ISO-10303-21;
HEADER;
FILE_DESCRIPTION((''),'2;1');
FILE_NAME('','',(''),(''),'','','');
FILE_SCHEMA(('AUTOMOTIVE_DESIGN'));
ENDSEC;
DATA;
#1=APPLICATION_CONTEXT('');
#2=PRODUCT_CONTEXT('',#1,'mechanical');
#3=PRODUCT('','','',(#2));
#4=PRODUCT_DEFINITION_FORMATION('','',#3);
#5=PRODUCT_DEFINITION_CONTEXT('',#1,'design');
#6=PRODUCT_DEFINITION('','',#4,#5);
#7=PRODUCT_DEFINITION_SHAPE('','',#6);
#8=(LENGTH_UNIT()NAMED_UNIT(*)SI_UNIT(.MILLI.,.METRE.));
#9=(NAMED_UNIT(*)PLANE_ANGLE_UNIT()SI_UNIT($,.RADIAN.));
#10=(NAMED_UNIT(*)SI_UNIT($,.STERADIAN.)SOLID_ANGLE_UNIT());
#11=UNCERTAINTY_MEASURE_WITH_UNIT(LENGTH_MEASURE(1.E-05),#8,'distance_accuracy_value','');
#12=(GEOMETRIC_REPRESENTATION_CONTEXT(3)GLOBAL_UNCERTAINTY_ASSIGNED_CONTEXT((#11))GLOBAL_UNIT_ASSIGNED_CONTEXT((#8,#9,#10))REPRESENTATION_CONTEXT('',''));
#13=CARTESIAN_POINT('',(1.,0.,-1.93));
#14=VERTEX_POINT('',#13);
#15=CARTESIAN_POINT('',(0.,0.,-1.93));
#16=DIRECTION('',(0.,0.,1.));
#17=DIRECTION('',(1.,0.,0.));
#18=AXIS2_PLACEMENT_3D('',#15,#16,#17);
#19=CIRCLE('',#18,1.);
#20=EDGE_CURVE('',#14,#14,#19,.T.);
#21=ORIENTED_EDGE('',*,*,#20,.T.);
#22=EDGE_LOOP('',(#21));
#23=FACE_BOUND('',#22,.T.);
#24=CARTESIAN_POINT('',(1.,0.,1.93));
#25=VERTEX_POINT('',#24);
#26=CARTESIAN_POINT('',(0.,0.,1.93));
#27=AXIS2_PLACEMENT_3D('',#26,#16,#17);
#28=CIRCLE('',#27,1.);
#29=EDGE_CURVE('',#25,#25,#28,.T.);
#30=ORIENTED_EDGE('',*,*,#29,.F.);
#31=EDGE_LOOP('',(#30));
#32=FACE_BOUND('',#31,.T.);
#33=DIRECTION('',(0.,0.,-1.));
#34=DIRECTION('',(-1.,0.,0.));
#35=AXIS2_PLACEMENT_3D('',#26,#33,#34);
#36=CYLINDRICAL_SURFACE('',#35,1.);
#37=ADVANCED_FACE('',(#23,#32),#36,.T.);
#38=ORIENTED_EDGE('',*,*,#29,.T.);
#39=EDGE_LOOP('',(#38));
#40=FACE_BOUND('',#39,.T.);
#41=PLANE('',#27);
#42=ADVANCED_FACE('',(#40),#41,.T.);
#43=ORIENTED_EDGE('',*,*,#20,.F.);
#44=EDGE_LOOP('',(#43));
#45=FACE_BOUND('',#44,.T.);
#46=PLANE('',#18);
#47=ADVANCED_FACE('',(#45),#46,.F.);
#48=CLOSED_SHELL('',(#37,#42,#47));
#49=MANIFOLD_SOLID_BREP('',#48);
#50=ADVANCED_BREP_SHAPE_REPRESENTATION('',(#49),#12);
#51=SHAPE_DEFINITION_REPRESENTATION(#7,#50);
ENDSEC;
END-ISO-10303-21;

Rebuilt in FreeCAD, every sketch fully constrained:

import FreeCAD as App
import Part
import Sketcher
from FreeCAD import Vector

doc = App.newDocument("Part")
body = doc.addObject("PartDesign::Body", "Body")

sketch1 = doc.addObject("Sketcher::SketchObject", "Sketch")
body.addObject(sketch1)
sketch1.AttachmentSupport = (doc.XY_Plane, [""])
sketch1.MapMode = "FlatFace"
sketch1.addGeometry(Part.Circle(Vector(0, 0, 0), Vector(0, 0, 1), 1), False)
sketch1.addConstraint([
    Sketcher.Constraint("Coincident", 0, 3, -1, 1),
    Sketcher.Constraint("Diameter", 0, 2.0),
])
pad1 = doc.addObject("PartDesign::Pad", "Pad")
body.addObject(pad1)
pad1.Profile = sketch1
pad1.Length = 3.86
pad1.Midplane = True

doc.recompute()
